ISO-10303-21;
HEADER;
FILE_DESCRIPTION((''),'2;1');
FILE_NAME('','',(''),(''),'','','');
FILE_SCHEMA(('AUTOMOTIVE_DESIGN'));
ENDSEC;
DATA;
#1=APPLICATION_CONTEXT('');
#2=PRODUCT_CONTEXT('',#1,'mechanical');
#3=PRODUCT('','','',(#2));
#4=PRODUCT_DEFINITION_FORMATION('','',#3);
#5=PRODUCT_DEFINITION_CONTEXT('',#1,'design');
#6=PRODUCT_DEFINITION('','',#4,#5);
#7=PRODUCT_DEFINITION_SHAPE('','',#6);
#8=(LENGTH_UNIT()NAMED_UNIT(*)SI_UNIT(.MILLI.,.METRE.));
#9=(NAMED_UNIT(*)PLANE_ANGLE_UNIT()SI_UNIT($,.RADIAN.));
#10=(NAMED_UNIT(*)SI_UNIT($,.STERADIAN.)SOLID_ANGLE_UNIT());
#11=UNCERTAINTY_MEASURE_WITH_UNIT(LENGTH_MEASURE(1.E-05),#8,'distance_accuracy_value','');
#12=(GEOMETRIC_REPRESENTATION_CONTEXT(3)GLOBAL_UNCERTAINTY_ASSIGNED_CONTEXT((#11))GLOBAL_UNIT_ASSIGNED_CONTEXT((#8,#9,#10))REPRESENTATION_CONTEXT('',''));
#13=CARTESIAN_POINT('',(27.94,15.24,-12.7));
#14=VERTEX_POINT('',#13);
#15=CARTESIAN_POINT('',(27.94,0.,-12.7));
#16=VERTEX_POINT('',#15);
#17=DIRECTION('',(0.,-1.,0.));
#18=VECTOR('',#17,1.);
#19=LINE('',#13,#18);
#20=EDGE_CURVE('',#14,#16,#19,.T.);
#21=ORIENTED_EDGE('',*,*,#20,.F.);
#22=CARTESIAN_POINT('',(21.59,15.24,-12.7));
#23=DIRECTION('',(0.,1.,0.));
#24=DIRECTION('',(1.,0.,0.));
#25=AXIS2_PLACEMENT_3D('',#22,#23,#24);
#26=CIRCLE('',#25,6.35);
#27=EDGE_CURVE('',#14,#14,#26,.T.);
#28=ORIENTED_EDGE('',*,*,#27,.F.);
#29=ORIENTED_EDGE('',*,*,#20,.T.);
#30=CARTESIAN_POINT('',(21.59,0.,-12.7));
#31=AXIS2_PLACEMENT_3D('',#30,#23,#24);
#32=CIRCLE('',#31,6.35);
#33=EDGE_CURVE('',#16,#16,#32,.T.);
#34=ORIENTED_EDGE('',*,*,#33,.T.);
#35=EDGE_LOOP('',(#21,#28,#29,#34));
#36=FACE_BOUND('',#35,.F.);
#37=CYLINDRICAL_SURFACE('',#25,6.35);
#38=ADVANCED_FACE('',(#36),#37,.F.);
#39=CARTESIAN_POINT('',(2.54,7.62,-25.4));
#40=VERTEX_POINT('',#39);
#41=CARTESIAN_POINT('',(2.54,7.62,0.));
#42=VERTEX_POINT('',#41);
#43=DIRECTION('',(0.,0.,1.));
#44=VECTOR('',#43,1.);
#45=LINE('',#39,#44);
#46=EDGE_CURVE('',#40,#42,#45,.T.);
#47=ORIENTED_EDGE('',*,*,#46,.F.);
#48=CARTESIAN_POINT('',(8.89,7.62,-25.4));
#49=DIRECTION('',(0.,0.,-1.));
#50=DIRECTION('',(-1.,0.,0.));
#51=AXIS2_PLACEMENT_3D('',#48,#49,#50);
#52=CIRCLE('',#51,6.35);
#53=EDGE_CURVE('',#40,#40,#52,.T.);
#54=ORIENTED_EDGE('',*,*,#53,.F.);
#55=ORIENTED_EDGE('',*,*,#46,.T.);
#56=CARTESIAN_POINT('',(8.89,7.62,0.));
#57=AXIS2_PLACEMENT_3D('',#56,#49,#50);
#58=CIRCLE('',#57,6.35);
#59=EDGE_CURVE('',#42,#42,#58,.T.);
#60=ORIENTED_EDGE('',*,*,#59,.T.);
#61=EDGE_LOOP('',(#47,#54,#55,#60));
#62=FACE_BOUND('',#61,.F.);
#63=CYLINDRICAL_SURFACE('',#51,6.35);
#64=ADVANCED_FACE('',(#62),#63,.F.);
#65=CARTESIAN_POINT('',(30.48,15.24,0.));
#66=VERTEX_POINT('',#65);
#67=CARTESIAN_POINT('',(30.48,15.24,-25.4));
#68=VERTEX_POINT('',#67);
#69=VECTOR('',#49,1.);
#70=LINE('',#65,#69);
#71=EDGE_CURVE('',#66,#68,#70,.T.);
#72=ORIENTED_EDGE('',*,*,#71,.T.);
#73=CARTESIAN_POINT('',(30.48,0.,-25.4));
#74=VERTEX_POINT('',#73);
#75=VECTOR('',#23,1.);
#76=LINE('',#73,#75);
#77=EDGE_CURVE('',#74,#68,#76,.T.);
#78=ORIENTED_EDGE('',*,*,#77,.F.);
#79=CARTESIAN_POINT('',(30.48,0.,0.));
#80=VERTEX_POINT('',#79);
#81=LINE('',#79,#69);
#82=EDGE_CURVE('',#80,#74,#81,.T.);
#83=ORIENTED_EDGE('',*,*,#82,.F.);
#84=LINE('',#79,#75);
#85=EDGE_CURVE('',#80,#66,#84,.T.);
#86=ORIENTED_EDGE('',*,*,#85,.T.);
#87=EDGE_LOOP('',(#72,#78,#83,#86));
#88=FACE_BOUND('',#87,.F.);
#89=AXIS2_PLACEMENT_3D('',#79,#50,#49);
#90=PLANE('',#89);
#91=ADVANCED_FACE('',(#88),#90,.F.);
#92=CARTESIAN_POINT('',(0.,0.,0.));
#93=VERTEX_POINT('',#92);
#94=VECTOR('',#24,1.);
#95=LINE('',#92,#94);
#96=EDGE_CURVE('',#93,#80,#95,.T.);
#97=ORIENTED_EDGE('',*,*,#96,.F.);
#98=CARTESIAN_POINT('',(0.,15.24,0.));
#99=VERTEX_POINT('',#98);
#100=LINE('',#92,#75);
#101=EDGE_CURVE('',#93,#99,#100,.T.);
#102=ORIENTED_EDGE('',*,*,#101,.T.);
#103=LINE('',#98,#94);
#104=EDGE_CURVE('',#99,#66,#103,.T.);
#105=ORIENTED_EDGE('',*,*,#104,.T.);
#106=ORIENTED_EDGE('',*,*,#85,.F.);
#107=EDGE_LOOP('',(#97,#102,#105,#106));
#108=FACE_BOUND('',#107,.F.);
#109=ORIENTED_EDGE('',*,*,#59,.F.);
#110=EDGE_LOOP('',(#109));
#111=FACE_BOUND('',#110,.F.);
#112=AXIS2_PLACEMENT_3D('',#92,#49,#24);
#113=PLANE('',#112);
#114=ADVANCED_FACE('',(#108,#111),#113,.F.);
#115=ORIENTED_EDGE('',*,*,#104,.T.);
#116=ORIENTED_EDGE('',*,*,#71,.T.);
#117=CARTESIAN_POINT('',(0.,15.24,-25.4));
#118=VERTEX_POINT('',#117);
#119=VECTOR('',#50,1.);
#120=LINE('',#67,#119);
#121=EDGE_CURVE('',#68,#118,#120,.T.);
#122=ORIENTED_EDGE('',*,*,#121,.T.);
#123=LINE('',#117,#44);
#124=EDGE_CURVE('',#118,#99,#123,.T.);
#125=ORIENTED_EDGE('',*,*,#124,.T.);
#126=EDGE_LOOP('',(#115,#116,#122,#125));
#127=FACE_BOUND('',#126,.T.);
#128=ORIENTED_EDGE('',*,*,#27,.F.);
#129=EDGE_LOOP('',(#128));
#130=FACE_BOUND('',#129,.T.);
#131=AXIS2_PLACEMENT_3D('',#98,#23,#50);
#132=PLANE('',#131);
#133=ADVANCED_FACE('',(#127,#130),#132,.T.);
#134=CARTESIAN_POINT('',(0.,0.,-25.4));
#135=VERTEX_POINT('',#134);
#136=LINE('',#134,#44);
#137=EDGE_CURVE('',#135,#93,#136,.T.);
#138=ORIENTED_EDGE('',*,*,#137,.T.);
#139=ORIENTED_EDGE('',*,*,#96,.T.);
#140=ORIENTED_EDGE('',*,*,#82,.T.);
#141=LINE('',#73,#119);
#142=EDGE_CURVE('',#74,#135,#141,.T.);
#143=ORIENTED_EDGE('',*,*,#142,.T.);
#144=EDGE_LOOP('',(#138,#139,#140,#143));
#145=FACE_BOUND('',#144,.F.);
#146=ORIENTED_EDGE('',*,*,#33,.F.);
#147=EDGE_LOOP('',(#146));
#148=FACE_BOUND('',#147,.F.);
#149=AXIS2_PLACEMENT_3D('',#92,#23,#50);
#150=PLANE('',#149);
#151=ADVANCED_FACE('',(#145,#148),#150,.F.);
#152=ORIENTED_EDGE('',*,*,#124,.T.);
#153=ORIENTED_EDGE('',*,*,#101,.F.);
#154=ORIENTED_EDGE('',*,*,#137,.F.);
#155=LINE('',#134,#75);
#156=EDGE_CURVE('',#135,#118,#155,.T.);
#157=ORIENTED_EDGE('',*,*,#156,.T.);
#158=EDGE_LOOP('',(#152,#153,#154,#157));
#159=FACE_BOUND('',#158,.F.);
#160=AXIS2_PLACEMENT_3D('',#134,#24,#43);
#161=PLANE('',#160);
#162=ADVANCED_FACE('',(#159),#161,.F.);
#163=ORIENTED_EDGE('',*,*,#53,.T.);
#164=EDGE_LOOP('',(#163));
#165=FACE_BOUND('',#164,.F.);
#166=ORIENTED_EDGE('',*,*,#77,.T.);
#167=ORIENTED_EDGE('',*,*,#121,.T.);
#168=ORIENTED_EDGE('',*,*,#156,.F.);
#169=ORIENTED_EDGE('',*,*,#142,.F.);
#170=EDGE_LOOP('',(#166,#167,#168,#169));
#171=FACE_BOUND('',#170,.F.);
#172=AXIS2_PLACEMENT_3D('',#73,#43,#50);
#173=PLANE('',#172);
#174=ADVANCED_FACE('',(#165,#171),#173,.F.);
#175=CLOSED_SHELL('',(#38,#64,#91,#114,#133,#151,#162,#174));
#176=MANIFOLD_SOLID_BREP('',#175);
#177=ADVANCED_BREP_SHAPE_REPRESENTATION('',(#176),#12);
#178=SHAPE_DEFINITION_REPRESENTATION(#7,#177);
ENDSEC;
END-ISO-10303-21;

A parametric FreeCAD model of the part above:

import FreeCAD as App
import Part
import Sketcher
from FreeCAD import Vector
Q = App.Units.Quantity


def add_polygon(sketch, points):
    """Adds a closed chain of lines whose ends are joined by coincident constraints."""
    first, n = sketch.GeometryCount, len(points)
    for a, b in zip(points, points[1:] + points[:1]):
        sketch.addGeometry(Part.LineSegment(App.Vector(*a, 0), App.Vector(*b, 0)), False)
    for i in range(n):
        sketch.addConstraint(Sketcher.Constraint("Coincident", first + i, 2, first + (i + 1) % n, 1))

doc = App.newDocument("Part")
body = doc.addObject("PartDesign::Body", "Body")

# Sketch on XZ plane
sketch1 = doc.addObject("Sketcher::SketchObject", "Sketch")
body.addObject(sketch1)
sketch1.AttachmentSupport = (doc.XZ_Plane, [""])
sketch1.MapMode = "FlatFace"
add_polygon(sketch1, [(0, -25), (0, 0), (30, 0), (30, -25)])  # lines 0-3
sketch1.addConstraint(Sketcher.Constraint("Vertical", 0))
sketch1.addConstraint(Sketcher.Constraint("Horizontal", 1))
sketch1.addConstraint(Sketcher.Constraint("Vertical", 2))
sketch1.addConstraint(Sketcher.Constraint("Horizontal", 3))
sketch1.addConstraint(Sketcher.Constraint("Coincident", 0, 2, -1, 1))
sketch1.addConstraint(Sketcher.Constraint("DistanceY", 0, 1, 0, 2, Q("1 in")))
sketch1.addConstraint(Sketcher.Constraint("DistanceX", 1, 1, 1, 2, Q("1.2 in")))
pad1 = doc.addObject("PartDesign::Pad", "Pad")
body.addObject(pad1)
pad1.Profile = sketch1
pad1.Length = Q("0.6 in")
pad1.Reversed = True

# Sketch on XY plane
sketch2 = doc.addObject("Sketcher::SketchObject", "Sketch001")
body.addObject(sketch2)
sketch2.AttachmentSupport = (doc.XY_Plane, [""])
sketch2.MapMode = "FlatFace"
sketch2.AttachmentOffset = App.Placement(Vector(0, 0, -1 * 25.4), App.Rotation())
sketch2.addGeometry(Part.Circle(Vector(9, 8, 0), Vector(0, 0, 1), 6), False)
sketch2.addConstraint(Sketcher.Constraint("Diameter", 0, Q("0.5 in")))
sketch2.addConstraint(Sketcher.Constraint("DistanceX", -1, 1, 0, 3, Q("0.35 in")))
sketch2.addConstraint(Sketcher.Constraint("DistanceY", -1, 1, 0, 3, Q("0.3 in")))
pocket1 = doc.addObject("PartDesign::Pocket", "Pocket")
body.addObject(pocket1)
pocket1.Profile = sketch2
pocket1.Length = Q("1 in")
pocket1.Reversed = True

# Sketch on XZ plane
sketch3 = doc.addObject("Sketcher::SketchObject", "Sketch002")
body.addObject(sketch3)
sketch3.AttachmentSupport = (doc.XZ_Plane, [""])
sketch3.MapMode = "FlatFace"
sketch3.AttachmentOffset = App.Placement(Vector(0, 0, -0.6 * 25.4), App.Rotation())
sketch3.addGeometry(Part.Circle(Vector(22, -13, 0), Vector(0, 0, 1), 6), False)
sketch3.addConstraint(Sketcher.Constraint("Diameter", 0, Q("0.5 in")))
sketch3.addConstraint(Sketcher.Constraint("DistanceY", 0, 3, -1, 1, Q("0.5 in")))
sketch3.addConstraint(Sketcher.Constraint("DistanceX", -1, 1, 0, 3, Q("0.85 in")))
pocket2 = doc.addObject("PartDesign::Pocket", "Pocket001")
body.addObject(pocket2)
pocket2.Profile = sketch3
pocket2.Length = Q("0.6 in")
pocket2.Reversed = True

doc.recompute()
